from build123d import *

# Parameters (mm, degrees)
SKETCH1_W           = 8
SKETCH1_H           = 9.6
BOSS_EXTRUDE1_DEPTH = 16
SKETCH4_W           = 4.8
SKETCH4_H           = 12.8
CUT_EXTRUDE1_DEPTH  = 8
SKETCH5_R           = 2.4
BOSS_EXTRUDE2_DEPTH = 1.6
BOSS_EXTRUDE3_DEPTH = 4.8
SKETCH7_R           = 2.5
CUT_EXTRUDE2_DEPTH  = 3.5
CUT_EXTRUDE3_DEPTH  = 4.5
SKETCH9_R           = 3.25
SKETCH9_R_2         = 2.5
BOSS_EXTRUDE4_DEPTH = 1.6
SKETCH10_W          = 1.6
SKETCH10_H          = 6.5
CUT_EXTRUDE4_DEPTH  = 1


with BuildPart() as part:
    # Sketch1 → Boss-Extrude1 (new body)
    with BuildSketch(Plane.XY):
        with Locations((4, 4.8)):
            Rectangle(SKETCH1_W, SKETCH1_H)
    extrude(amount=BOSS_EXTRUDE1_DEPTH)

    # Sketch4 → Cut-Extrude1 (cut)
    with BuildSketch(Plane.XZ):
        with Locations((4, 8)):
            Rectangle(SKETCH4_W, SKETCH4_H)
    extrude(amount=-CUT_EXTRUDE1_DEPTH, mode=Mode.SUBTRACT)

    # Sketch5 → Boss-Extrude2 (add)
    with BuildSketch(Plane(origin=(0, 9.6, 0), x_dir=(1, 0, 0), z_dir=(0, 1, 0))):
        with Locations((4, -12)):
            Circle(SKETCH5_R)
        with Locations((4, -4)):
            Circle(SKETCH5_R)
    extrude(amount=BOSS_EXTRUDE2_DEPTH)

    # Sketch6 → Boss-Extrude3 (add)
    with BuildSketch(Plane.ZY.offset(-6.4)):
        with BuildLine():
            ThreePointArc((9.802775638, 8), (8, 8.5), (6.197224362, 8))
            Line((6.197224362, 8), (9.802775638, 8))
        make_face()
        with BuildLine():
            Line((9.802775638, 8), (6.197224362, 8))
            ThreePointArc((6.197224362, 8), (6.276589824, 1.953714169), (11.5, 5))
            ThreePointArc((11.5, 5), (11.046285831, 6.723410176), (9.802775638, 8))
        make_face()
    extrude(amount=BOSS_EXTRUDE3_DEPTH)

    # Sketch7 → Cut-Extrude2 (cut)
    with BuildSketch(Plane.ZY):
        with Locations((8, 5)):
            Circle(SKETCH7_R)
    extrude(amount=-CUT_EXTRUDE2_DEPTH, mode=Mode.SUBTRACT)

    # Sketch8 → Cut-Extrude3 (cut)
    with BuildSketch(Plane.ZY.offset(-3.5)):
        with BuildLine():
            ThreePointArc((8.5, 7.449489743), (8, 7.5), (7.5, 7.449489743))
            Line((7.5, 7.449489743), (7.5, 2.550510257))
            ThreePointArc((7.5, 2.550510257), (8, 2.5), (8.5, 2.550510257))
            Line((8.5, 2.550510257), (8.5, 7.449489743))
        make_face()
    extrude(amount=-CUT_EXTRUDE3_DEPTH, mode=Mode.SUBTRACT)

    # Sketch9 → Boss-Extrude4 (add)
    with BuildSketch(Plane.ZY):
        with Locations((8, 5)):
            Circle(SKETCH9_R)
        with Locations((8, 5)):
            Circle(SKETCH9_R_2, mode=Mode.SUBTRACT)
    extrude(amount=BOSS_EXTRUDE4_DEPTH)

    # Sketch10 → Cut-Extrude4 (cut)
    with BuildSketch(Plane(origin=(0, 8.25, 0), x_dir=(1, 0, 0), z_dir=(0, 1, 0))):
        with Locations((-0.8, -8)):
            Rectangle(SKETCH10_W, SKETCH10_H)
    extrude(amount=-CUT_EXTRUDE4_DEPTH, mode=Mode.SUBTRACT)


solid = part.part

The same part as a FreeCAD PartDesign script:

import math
import FreeCAD as App
import Part
import Sketcher
Q = App.Units.Quantity

doc = App.newDocument("Part")
body = doc.addObject("PartDesign::Body", "Body")

# Sketch on XY plane
sketch1 = body.newObject("Sketcher::SketchObject", "Sketch")
sketch1.AttachmentSupport = (doc.getObject("XY_Plane"), [""])
sketch1.MapMode = "FlatFace"
sketch1.addGeometry(Part.LineSegment(App.Vector(0, 10, 0), App.Vector(0, 0, 0)), False)
sketch1.addGeometry(Part.LineSegment(App.Vector(0, 0, 0), App.Vector(8, 0, 0)), False)
sketch1.addGeometry(Part.LineSegment(App.Vector(8, 0, 0), App.Vector(8, 10, 0)), False)
sketch1.addGeometry(Part.LineSegment(App.Vector(8, 10, 0), App.Vector(0, 10, 0)), False)
sketch1.addConstraint(Sketcher.Constraint("Coincident", 0, 2, 1, 1))
sketch1.addConstraint(Sketcher.Constraint("Coincident", 1, 2, 2, 1))
sketch1.addConstraint(Sketcher.Constraint("Coincident", 2, 2, 3, 1))
sketch1.addConstraint(Sketcher.Constraint("Coincident", 3, 2, 0, 1))
sketch1.addConstraint(Sketcher.Constraint("Vertical", 0))
sketch1.addConstraint(Sketcher.Constraint("Horizontal", 1))
sketch1.addConstraint(Sketcher.Constraint("Vertical", 2))
sketch1.addConstraint(Sketcher.Constraint("Horizontal", 3))
sketch1.addConstraint(Sketcher.Constraint("Coincident", 0, 2, -1, 1))
sketch1.addConstraint(Sketcher.Constraint("DistanceX", 1, 1, 1, 2, Q("8 mm")))
sketch1.addConstraint(Sketcher.Constraint("DistanceY", 0, 2, 0, 1, Q("9.6 mm")))
pad1 = body.newObject("PartDesign::Pad", "Pad")
pad1.Profile = sketch1
pad1.Length = 16

# Sketch on XZ plane
sketch2 = body.newObject("Sketcher::SketchObject", "Sketch001")
sketch2.AttachmentSupport = (doc.getObject("XZ_Plane"), [""])
sketch2.MapMode = "FlatFace"
sketch2.addGeometry(Part.LineSegment(App.Vector(1.6, 14.4, 0), App.Vector(1.6, 1.6, 0)), False)
sketch2.addGeometry(Part.LineSegment(App.Vector(1.6, 1.6, 0), App.Vector(6.4, 1.6, 0)), False)
sketch2.addGeometry(Part.LineSegment(App.Vector(6.4, 1.6, 0), App.Vector(6.4, 14.4, 0)), False)
sketch2.addGeometry(Part.LineSegment(App.Vector(6.4, 14.4, 0), App.Vector(1.6, 14.4, 0)), False)
sketch2.addConstraint(Sketcher.Constraint("Coincident", 0, 2, 1, 1))
sketch2.addConstraint(Sketcher.Constraint("Coincident", 1, 2, 2, 1))
sketch2.addConstraint(Sketcher.Constraint("Coincident", 2, 2, 3, 1))
sketch2.addConstraint(Sketcher.Constraint("Coincident", 3, 2, 0, 1))
sketch2.addConstraint(Sketcher.Constraint("Vertical", 0))
sketch2.addConstraint(Sketcher.Constraint("Horizontal", 1))
sketch2.addConstraint(Sketcher.Constraint("Vertical", 2))
sketch2.addConstraint(Sketcher.Constraint("Horizontal", 3))
sketch2.addConstraint(Sketcher.Constraint("DistanceX", 1, 1, 1, 2, Q("4.8 mm")))
sketch2.addConstraint(Sketcher.Constraint("DistanceY", 0, 2, 0, 1, Q("12.8 mm")))
sketch2.addConstraint(Sketcher.Constraint("DistanceX", -1, 1, 0, 2, Q("1.6 mm")))
sketch2.addConstraint(Sketcher.Constraint("DistanceY", -1, 1, 0, 2, Q("1.6 mm")))
pocket1 = body.newObject("PartDesign::Pocket", "Pocket")
pocket1.Profile = sketch2
pocket1.Length = 8

# Sketch on XZ plane
sketch3 = body.newObject("Sketcher::SketchObject", "Sketch002")
sketch3.AttachmentSupport = (doc.getObject("XZ_Plane"), [""])
sketch3.MapMode = "FlatFace"
sketch3.AttachmentOffset = App.Placement(App.Vector(0, 0, -9.6), App.Rotation())
sketch3.addGeometry(Part.Circle(App.Vector(4, 12, 0), App.Vector(0, 0, 1), 2.4), False)
sketch3.addGeometry(Part.Circle(App.Vector(4, 4, 0), App.Vector(0, 0, 1), 2.4), False)
sketch3.addConstraint(Sketcher.Constraint("Equal", 0, 1))
sketch3.addConstraint(Sketcher.Constraint("Vertical", 0, 3, 1, 3))
sketch3.addConstraint(Sketcher.Constraint("Diameter", 0, Q("4.8 mm")))
sketch3.addConstraint(Sketcher.Constraint("DistanceX", -1, 1, 0, 3, Q("4 mm")))
sketch3.addConstraint(Sketcher.Constraint("DistanceY", -1, 1, 0, 3, Q("12 mm")))
sketch3.addConstraint(Sketcher.Constraint("DistanceY", -1, 1, 1, 3, Q("4 mm")))
pad2 = body.newObject("PartDesign::Pad", "Pad001")
pad2.Profile = sketch3
pad2.Length = 1.6
pad2.Reversed = True

# Sketch on YZ plane
sketch4 = body.newObject("Sketcher::SketchObject", "Sketch003")
sketch4.AttachmentSupport = (doc.getObject("YZ_Plane"), [""])
sketch4.MapMode = "FlatFace"
sketch4.AttachmentOffset = App.Placement(App.Vector(0, 0, 6.4), App.Rotation())
sketch4.addGeometry(Part.ArcOfCircle(Part.Circle(App.Vector(5, 8, 0), App.Vector(0, 0, 1), 3.5), math.radians(-31), math.radians(31)), False)
sketch4.addGeometry(Part.ArcOfCircle(Part.Circle(App.Vector(5, 8, 0), App.Vector(0, 0, 1), 3.5), math.radians(90), math.radians(329)), False)
sketch4.addGeometry(Part.ArcOfCircle(Part.Circle(App.Vector(5, 8, 0), App.Vector(0, 0, 1), 3.5), math.radians(31), math.radians(90)), False)
sketch4.addConstraint(Sketcher.Constraint("Tangent", 0, 1, 1, 2))
sketch4.addConstraint(Sketcher.Constraint("Tangent", 1, 1, 2, 2))
sketch4.addConstraint(Sketcher.Constraint("Tangent", 2, 1, 0, 2))
sketch4.addConstraint(Sketcher.Constraint("Vertical", 2, 3, 1, 1))
sketch4.addConstraint(Sketcher.Constraint("Vertical", 0, 1, 2, 1))
sketch4.addConstraint(Sketcher.Constraint("Radius", 0, Q("3.5 mm")))
sketch4.addConstraint(Sketcher.Constraint("DistanceX", -1, 1, 0, 3, Q("5 mm")))
sketch4.addConstraint(Sketcher.Constraint("DistanceY", -1, 1, 0, 3, Q("8 mm")))
sketch4.addConstraint(Sketcher.Constraint("DistanceX", -1, 1, 0, 1, Q("8 mm")))
pad3 = body.newObject("PartDesign::Pad", "Pad002")
pad3.Profile = sketch4
pad3.Length = 4.8
pad3.Reversed = True

# Sketch on YZ plane
sketch5 = body.newObject("Sketcher::SketchObject", "Sketch004")
sketch5.AttachmentSupport = (doc.getObject("YZ_Plane"), [""])
sketch5.MapMode = "FlatFace"
sketch5.addGeometry(Part.Circle(App.Vector(5, 8, 0), App.Vector(0, 0, 1), 2.5), False)
sketch5.addConstraint(Sketcher.Constraint("Diameter", 0, Q("5 mm")))
sketch5.addConstraint(Sketcher.Constraint("DistanceX", -1, 1, 0, 3, Q("5 mm")))
sketch5.addConstraint(Sketcher.Constraint("DistanceY", -1, 1, 0, 3, Q("8 mm")))
pocket2 = body.newObject("PartDesign::Pocket", "Pocket001")
pocket2.Profile = sketch5
pocket2.Length = 3.5
pocket2.Reversed = True

# Sketch on YZ plane
sketch6 = body.newObject("Sketcher::SketchObject", "Sketch005")
sketch6.AttachmentSupport = (doc.getObject("YZ_Plane"), [""])
sketch6.MapMode = "FlatFace"
sketch6.AttachmentOffset = App.Placement(App.Vector(0, 0, 3.5), App.Rotation())
sketch6.addGeometry(Part.ArcOfCircle(Part.Circle(App.Vector(5, 8, 0), App.Vector(0, 0, 1), 2.5), math.radians(-12), math.radians(12)), False)
sketch6.addGeometry(Part.LineSegment(App.Vector(7.4, 7.5, 0), App.Vector(2.6, 7.5, 0)), False)
sketch6.addGeometry(Part.ArcOfCircle(Part.Circle(App.Vector(5, 8, 0), App.Vector(0, 0, 1), 2.5), math.radians(168), math.radians(192)), False)
sketch6.addGeometry(Part.LineSegment(App.Vector(2.6, 8.5, 0), App.Vector(7.4, 8.5, 0)), False)
sketch6.addConstraint(Sketcher.Constraint("Coincident", 0, 1, 1, 1))
sketch6.addConstraint(Sketcher.Constraint("Coincident", 1, 2, 2, 2))
sketch6.addConstraint(Sketcher.Constraint("Coincident", 2, 1, 3, 1))
sketch6.addConstraint(Sketcher.Constraint("Coincident", 3, 2, 0, 2))
sketch6.addConstraint(Sketcher.Constraint("Horizontal", 1))
sketch6.addConstraint(Sketcher.Constraint("Horizontal", 3))
sketch6.addConstraint(Sketcher.Constraint("Coincident", 2, 3, 0, 3))
sketch6.addConstraint(Sketcher.Constraint("Equal", 0, 2))
sketch6.addConstraint(Sketcher.Constraint("Vertical", 1, 2, 2, 1))
sketch6.addConstraint(Sketcher.Constraint("Radius", 0, Q("2.5 mm")))
sketch6.addConstraint(Sketcher.Constraint("DistanceX", -1, 1, 0, 3, Q("5 mm")))
sketch6.addConstraint(Sketcher.Constraint("DistanceY", -1, 1, 0, 3, Q("8 mm")))
sketch6.addConstraint(Sketcher.Constraint("DistanceY", 1, 2, 2, 1, Q("1 mm")))
pocket3 = body.newObject("PartDesign::Pocket", "Pocket002")
pocket3.Profile = sketch6
pocket3.Length = 4.5
pocket3.Reversed = True

# Sketch on YZ plane
sketch7 = body.newObject("Sketcher::SketchObject", "Sketch006")
sketch7.AttachmentSupport = (doc.getObject("YZ_Plane"), [""])
sketch7.MapMode = "FlatFace"
sketch7.addGeometry(Part.Circle(App.Vector(5, 8, 0), App.Vector(0, 0, 1), 3.2), False)
sketch7.addGeometry(Part.Circle(App.Vector(5, 8, 0), App.Vector(0, 0, 1), 2.5), False)
sketch7.addConstraint(Sketcher.Constraint("Coincident", 1, 3, 0, 3))
sketch7.addConstraint(Sketcher.Constraint("Diameter", 1, Q("5 mm")))
sketch7.addConstraint(Sketcher.Constraint("Diameter", 0, Q("6.5 mm")))
sketch7.addConstraint(Sketcher.Constraint("DistanceX", -1, 1, 0, 3, Q("5 mm")))
sketch7.addConstraint(Sketcher.Constraint("DistanceY", -1, 1, 0, 3, Q("8 mm")))
pad4 = body.newObject("PartDesign::Pad", "Pad003")
pad4.Profile = sketch7
pad4.Length = 1.6
pad4.Reversed = True

# Sketch on XZ plane
sketch8 = body.newObject("Sketcher::SketchObject", "Sketch007")
sketch8.AttachmentSupport = (doc.getObject("XZ_Plane"), [""])
sketch8.MapMode = "FlatFace"
sketch8.AttachmentOffset = App.Placement(App.Vector(0, 0, -8.25), App.Rotation())
sketch8.addGeometry(Part.LineSegment(App.Vector(-1.6, 4.8, 0), App.Vector(-1.6, 11.2, 0)), False)
sketch8.addGeometry(Part.LineSegment(App.Vector(-1.6, 11.2, 0), App.Vector(0, 11.2, 0)), False)
sketch8.addGeometry(Part.LineSegment(App.Vector(0, 11.2, 0), App.Vector(0, 4.8, 0)), False)
sketch8.addGeometry(Part.LineSegment(App.Vector(0, 4.8, 0), App.Vector(-1.6, 4.8, 0)), False)
sketch8.addConstraint(Sketcher.Constraint("Coincident", 0, 2, 1, 1))
sketch8.addConstraint(Sketcher.Constraint("Coincident", 1, 2, 2, 1))
sketch8.addConstraint(Sketcher.Constraint("Coincident", 2, 2, 3, 1))
sketch8.addConstraint(Sketcher.Constraint("Coincident", 3, 2, 0, 1))
sketch8.addConstraint(Sketcher.Constraint("Vertical", 0))
sketch8.addConstraint(Sketcher.Constraint("Horizontal", 1))
sketch8.addConstraint(Sketcher.Constraint("Vertical", 2))
sketch8.addConstraint(Sketcher.Constraint("Horizontal", 3))
sketch8.addConstraint(Sketcher.Constraint("PointOnObject", 1, 2, -2))
sketch8.addConstraint(Sketcher.Constraint("DistanceX", 1, 1, 1, 2, Q("1.6 mm")))
sketch8.addConstraint(Sketcher.Constraint("DistanceY", 0, 1, 0, 2, Q("6.5 mm")))
sketch8.addConstraint(Sketcher.Constraint("DistanceY", -1, 1, 0, 2, Q("11.25 mm")))
pocket4 = body.newObject("PartDesign::Pocket", "Pocket003")
pocket4.Profile = sketch8
pocket4.Length = 1
pocket4.Reversed = True

doc.recompute()
